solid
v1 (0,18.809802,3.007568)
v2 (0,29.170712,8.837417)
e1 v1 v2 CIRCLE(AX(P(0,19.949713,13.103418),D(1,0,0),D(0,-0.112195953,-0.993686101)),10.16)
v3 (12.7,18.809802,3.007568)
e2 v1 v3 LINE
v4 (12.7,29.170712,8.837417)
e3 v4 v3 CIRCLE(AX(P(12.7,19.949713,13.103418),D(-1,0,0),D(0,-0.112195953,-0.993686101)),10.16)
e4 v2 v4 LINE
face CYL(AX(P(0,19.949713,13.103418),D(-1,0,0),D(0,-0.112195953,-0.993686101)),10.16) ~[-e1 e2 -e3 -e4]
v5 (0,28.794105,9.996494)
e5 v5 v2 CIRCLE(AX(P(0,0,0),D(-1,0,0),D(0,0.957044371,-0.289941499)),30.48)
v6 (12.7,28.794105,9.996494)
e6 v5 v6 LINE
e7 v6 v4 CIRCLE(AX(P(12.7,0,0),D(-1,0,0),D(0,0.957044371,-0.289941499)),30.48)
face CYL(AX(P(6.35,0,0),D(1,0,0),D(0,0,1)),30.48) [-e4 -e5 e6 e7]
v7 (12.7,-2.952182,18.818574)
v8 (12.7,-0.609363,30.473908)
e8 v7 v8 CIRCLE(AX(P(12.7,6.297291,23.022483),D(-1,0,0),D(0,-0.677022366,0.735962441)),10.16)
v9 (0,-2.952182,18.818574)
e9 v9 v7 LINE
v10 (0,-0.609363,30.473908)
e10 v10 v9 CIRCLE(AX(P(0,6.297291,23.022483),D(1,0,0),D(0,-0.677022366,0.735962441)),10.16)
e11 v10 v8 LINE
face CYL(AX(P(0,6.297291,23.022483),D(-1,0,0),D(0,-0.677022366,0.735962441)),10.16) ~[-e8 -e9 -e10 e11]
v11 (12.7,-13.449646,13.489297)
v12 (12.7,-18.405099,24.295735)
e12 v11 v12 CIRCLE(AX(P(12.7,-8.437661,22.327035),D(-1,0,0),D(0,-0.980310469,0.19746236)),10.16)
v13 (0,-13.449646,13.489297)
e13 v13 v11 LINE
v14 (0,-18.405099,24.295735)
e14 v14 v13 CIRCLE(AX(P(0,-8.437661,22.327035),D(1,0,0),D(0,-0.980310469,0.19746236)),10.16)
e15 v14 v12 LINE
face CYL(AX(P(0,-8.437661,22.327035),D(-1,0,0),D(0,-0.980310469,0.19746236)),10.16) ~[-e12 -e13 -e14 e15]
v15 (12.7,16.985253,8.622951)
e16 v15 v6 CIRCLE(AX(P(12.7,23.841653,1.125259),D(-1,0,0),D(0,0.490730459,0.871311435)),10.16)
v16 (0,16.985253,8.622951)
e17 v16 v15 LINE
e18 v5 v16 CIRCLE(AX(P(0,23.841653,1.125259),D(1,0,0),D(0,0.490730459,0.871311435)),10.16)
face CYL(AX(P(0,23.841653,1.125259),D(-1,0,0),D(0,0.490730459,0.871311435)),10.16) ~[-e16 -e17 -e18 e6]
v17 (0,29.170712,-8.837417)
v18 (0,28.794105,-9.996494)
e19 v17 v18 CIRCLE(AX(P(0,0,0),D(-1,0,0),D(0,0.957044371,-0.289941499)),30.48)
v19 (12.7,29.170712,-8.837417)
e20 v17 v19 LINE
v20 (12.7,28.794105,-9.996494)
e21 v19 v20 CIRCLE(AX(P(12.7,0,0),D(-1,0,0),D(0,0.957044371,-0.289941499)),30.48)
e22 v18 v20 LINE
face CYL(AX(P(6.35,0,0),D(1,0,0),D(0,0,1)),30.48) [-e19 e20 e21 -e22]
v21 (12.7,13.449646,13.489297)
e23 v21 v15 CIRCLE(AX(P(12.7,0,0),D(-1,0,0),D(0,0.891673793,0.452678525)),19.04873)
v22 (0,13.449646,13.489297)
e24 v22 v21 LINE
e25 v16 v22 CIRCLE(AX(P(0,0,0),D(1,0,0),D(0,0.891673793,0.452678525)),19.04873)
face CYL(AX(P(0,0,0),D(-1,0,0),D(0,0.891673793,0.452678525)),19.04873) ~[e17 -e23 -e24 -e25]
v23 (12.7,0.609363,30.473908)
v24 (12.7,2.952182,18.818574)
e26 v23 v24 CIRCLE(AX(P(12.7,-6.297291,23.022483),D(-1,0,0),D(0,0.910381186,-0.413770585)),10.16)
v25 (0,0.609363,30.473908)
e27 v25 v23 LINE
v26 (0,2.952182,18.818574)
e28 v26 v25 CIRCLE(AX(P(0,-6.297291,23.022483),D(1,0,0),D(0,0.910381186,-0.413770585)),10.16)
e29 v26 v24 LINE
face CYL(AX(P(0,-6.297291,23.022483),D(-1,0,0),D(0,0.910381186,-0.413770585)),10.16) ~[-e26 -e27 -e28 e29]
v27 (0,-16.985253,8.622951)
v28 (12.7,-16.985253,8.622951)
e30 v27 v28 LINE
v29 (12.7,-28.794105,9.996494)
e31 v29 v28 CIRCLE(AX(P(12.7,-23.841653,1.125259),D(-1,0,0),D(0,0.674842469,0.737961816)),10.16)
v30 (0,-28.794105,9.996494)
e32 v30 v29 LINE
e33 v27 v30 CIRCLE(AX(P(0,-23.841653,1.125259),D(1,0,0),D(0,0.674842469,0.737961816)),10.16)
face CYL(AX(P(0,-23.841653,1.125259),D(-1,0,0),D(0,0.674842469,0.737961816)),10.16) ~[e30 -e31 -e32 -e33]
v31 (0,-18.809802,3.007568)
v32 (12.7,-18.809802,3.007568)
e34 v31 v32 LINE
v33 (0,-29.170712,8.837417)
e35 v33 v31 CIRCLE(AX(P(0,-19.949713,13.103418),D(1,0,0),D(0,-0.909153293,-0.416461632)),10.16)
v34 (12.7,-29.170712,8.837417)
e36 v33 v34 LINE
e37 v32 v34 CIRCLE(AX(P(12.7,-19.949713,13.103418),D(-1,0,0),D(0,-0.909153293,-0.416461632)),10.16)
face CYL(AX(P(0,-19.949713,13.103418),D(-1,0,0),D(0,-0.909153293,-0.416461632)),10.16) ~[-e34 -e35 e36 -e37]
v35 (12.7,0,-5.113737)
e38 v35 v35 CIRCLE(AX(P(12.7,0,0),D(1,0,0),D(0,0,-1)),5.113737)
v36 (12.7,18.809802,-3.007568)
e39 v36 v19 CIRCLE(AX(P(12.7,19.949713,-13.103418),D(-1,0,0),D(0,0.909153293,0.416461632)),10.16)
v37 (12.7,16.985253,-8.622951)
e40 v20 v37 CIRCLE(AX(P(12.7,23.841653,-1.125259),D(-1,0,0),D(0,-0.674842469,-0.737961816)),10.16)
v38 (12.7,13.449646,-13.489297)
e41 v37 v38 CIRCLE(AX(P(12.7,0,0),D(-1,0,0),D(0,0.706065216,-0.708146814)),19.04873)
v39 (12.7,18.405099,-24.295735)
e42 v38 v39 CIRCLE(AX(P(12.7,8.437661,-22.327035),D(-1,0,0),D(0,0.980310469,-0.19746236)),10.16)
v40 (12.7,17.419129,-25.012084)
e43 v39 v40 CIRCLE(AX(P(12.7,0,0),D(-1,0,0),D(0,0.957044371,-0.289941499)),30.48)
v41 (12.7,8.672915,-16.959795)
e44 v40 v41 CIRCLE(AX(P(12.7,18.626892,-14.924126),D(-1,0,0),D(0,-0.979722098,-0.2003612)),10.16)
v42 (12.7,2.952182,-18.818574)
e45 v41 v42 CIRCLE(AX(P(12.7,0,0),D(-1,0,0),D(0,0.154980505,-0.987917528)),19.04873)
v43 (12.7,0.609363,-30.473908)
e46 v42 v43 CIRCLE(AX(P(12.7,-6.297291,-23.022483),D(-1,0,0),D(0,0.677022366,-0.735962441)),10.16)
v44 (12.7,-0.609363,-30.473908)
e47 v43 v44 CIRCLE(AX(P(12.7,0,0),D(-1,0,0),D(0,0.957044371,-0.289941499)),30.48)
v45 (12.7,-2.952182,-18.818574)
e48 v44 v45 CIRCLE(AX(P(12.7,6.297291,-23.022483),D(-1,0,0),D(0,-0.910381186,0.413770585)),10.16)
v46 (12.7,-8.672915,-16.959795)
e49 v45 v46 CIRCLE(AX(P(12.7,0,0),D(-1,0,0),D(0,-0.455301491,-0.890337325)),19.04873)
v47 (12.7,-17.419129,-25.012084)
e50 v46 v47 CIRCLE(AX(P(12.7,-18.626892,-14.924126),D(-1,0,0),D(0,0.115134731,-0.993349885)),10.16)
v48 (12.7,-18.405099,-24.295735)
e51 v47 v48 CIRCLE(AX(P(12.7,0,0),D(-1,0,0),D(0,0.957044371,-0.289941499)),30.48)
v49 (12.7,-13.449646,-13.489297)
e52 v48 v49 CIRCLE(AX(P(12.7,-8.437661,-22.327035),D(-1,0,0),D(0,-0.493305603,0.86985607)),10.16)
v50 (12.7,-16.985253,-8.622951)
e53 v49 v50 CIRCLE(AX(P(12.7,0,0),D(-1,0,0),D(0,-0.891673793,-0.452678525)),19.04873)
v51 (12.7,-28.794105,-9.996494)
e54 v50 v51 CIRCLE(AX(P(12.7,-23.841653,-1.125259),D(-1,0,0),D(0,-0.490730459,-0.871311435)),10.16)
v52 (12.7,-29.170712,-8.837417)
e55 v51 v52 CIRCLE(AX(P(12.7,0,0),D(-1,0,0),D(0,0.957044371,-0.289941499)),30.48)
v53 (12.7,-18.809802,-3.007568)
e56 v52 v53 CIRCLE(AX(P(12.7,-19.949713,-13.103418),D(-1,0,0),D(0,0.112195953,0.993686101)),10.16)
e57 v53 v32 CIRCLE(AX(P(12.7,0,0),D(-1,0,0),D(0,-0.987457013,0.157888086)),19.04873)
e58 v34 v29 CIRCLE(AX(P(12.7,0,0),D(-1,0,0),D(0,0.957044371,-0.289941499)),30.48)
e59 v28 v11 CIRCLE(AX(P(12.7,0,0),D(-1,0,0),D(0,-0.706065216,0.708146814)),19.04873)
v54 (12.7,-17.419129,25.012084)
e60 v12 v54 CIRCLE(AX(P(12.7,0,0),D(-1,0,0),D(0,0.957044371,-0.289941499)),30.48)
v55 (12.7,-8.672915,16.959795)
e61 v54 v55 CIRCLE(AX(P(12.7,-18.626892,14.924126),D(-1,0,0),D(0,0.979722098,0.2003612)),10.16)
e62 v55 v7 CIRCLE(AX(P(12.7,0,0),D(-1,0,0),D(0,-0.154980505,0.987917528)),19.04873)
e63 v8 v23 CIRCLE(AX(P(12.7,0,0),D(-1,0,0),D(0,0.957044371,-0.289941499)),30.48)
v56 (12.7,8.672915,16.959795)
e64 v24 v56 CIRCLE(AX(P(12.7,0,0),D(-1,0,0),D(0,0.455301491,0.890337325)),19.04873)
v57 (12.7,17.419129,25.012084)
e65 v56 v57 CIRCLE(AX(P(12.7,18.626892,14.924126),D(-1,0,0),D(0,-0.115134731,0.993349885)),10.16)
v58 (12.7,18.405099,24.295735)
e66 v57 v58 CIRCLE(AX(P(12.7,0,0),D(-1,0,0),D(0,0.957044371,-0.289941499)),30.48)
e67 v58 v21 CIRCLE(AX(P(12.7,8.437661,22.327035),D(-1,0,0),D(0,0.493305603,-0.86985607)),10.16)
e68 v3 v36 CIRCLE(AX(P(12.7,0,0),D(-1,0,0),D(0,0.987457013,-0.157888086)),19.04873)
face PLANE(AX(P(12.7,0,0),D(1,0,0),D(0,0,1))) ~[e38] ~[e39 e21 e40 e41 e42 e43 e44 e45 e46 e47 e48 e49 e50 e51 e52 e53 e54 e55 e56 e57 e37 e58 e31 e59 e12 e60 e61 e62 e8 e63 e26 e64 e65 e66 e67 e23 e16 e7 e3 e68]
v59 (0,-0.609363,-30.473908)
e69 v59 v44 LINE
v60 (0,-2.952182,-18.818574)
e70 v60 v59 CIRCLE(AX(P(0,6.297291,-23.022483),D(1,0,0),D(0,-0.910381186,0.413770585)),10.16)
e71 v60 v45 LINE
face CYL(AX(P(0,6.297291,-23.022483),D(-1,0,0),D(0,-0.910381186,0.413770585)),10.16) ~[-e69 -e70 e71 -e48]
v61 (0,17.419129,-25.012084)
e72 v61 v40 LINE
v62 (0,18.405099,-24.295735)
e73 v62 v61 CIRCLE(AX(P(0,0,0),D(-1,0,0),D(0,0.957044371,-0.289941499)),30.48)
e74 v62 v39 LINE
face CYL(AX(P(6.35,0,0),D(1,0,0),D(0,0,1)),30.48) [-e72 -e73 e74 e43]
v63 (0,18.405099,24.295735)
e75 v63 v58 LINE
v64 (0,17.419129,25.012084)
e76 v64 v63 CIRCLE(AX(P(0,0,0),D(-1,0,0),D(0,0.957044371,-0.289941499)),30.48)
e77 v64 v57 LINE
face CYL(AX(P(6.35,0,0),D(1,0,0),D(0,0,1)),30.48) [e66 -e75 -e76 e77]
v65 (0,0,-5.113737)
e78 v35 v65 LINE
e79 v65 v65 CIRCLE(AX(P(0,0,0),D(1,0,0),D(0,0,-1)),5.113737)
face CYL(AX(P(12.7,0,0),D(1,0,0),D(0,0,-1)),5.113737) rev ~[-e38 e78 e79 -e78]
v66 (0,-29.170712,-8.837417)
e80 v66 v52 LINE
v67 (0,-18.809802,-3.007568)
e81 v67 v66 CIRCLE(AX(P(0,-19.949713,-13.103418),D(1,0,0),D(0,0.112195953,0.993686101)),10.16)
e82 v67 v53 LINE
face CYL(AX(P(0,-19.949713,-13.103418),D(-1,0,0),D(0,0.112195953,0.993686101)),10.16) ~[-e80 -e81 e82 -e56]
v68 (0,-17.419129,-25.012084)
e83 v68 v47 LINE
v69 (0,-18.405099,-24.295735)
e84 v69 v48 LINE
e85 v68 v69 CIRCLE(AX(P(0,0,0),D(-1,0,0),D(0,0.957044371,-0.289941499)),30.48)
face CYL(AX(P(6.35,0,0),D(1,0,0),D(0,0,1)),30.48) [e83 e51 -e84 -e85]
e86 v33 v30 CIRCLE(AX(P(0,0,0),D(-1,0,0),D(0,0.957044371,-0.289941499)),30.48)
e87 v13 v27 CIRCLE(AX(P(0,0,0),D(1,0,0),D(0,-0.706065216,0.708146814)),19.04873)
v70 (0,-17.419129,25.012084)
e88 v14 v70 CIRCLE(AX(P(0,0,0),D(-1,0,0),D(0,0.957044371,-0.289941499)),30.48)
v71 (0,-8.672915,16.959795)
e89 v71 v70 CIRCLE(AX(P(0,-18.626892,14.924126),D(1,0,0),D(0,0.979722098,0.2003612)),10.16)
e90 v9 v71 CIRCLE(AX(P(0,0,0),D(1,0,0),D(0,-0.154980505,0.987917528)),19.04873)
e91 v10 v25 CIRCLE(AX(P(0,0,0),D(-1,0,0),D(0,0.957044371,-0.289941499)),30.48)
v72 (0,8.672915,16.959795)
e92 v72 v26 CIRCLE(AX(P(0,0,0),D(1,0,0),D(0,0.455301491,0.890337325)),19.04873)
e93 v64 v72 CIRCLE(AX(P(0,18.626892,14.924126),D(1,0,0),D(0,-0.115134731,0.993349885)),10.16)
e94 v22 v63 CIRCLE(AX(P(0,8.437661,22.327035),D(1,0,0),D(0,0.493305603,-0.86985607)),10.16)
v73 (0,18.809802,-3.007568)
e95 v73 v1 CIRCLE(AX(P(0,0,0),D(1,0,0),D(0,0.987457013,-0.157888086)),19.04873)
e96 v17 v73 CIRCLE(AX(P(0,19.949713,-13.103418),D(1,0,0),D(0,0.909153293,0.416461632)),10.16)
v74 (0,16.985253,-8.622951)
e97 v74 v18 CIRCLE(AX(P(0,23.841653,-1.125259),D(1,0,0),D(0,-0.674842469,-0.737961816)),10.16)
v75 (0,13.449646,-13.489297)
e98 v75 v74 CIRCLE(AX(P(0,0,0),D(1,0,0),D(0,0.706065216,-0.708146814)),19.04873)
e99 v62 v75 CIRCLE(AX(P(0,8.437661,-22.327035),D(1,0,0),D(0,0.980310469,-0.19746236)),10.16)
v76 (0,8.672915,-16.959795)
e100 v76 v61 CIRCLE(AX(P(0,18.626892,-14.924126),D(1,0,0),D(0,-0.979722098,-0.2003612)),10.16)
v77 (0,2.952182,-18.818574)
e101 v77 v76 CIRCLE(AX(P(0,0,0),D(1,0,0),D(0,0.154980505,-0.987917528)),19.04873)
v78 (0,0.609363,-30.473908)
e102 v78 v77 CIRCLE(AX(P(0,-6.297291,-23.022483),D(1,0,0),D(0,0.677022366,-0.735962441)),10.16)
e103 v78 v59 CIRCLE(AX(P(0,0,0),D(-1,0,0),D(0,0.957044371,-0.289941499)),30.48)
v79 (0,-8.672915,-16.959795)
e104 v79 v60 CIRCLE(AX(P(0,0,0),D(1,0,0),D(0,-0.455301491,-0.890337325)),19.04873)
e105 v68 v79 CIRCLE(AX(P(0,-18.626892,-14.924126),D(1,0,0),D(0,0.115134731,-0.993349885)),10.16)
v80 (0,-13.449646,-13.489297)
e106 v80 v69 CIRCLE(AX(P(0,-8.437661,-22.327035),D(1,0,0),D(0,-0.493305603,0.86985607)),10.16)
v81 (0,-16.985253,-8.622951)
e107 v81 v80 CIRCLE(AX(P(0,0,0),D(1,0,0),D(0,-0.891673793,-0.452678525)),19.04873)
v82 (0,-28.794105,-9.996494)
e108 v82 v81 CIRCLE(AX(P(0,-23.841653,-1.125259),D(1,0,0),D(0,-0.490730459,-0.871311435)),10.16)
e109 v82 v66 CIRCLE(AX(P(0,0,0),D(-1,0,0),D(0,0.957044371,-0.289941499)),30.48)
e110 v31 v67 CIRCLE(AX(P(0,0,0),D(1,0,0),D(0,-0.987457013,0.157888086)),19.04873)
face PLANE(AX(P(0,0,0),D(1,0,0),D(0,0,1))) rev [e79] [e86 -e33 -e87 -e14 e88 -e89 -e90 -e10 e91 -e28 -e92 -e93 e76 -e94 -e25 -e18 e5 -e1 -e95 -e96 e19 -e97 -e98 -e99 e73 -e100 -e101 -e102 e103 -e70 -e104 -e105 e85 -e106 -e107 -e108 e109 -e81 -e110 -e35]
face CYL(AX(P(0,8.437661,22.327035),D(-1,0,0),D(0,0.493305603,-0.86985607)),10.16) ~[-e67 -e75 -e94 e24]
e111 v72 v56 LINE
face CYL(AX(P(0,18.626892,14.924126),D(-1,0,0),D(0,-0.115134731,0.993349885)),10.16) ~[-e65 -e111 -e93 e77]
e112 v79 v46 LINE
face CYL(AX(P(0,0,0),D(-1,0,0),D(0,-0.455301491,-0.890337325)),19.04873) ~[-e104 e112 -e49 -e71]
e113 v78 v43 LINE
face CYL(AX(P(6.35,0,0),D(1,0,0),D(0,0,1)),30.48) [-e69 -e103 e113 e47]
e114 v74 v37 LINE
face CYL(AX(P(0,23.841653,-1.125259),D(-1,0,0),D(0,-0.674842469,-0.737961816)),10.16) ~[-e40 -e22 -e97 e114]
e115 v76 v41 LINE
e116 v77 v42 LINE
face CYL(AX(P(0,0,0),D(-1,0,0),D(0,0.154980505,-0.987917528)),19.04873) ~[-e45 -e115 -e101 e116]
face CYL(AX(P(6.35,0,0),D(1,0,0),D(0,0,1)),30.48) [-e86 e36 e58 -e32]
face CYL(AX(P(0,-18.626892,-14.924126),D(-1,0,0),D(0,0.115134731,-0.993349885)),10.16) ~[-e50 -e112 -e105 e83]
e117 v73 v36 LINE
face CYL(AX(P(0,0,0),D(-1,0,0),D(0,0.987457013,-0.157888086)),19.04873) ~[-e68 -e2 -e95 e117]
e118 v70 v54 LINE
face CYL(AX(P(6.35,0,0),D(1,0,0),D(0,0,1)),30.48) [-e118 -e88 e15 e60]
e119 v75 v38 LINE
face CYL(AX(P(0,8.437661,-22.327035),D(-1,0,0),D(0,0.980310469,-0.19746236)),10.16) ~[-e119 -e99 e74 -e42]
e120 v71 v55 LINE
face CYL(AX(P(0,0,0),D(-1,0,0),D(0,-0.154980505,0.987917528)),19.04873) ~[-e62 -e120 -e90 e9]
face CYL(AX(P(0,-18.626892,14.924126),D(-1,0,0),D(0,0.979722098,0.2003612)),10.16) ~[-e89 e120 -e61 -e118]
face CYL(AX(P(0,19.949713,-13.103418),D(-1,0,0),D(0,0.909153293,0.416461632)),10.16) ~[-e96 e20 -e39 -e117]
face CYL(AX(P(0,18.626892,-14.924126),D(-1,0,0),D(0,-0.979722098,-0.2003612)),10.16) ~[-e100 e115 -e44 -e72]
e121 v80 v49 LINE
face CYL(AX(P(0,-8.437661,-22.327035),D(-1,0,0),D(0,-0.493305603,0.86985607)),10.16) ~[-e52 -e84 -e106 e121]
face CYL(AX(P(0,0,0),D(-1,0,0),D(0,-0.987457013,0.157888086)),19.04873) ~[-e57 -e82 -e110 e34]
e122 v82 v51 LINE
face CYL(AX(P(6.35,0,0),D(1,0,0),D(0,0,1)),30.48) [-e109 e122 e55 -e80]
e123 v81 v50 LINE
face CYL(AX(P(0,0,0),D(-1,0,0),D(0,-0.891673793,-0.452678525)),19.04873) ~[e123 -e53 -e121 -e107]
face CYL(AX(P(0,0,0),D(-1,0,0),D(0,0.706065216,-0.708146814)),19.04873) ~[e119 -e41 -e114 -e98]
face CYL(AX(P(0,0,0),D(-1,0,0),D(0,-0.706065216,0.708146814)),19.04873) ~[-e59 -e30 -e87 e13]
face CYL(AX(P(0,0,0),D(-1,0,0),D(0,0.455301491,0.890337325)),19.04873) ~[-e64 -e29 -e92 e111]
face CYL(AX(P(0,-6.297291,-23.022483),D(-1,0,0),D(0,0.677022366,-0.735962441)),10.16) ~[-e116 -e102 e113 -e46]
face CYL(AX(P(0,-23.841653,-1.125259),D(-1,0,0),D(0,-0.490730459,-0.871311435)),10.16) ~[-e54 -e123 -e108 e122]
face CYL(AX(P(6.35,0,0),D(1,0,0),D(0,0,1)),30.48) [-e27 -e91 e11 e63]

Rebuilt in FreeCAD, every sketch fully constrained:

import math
import FreeCAD as App
import Part
import Sketcher
from FreeCAD import Vector
Q = App.Units.Quantity


def add_polygon(sketch, points):
    """Adds a closed chain of lines whose ends are joined by coincident constraints."""
    first, n = sketch.GeometryCount, len(points)
    for a, b in zip(points, points[1:] + points[:1]):
        sketch.addGeometry(Part.LineSegment(App.Vector(*a, 0), App.Vector(*b, 0)), False)
    for i in range(n):
        sketch.addConstraint(Sketcher.Constraint("Coincident", first + i, 2, first + (i + 1) % n, 1))

doc = App.newDocument("Part")
body = doc.addObject("PartDesign::Body", "Body")

# Sketch on XZ plane
sketch1 = body.newObject("Sketcher::SketchObject", "Sketch")
sketch1.AttachmentSupport = (doc.getObject("XZ_Plane"), [""])
sketch1.MapMode = "FlatFace"
add_polygon(sketch1, [(0, -30), (0, 0), (13, 0), (13, -30)])  # lines 0-3
sketch1.addConstraint([
    Sketcher.Constraint("Vertical", 0),
    Sketcher.Constraint("Horizontal", 1),
    Sketcher.Constraint("Vertical", 2),
    Sketcher.Constraint("Horizontal", 3),
    Sketcher.Constraint("Coincident", 0, 2, -1, 1),
    Sketcher.Constraint("DistanceX", 1, 1, 1, 2, Q("0.5 in")),
    Sketcher.Constraint("DistanceY", 0, 1, 0, 2, Q("1.2 in")),
])
revolution = body.newObject("PartDesign::Revolution", "Revolution")
revolution.Profile = sketch1
revolution.ReferenceAxis = (sketch1, ["H_Axis"])
revolution.Angle = 360

# Sketch on YZ plane
sketch2 = body.newObject("Sketcher::SketchObject", "Sketch001")
sketch2.AttachmentSupport = (doc.getObject("YZ_Plane"), [""])
sketch2.MapMode = "FlatFace"
sketch2.addGeometry([
    Part.ArcOfCircle(Part.Circle(Vector(0, 0, 0), Vector(0, 0, 1), 19), math.radians(-9.08), math.radians(9.08)),
    Part.ArcOfCircle(Part.Circle(Vector(20, -13, 0), Vector(0, 0, 1), 10), math.radians(25), math.radians(96)),
    Part.ArcOfCircle(Part.Circle(Vector(0, 0, 0), Vector(0, 0, 1), 31), math.radians(-17), math.radians(17)),
    Part.ArcOfCircle(Part.Circle(Vector(20, 13, 0), Vector(0, 0, 1), 10), math.radians(-96), math.radians(-25)),
], False)
sketch2.addConstraint([
    Sketcher.Constraint("Coincident", 0, 1, 1, 2),
    Sketcher.Constraint("Coincident", 1, 1, 2, 1),
    Sketcher.Constraint("Coincident", 2, 2, 3, 2),
    Sketcher.Constraint("Coincident", 3, 1, 0, 2),
    Sketcher.Constraint("Coincident", 0, 3, -1, 1),
    Sketcher.Constraint("Coincident", 2, 3, -1, 1),
    Sketcher.Constraint("Equal", 1, 3),
    Sketcher.Constraint("Symmetric", 1, 3, 3, 3, -1),
    Sketcher.Constraint("Radius", 1, Q("0.4 in")),
    Sketcher.Constraint("Radius", 2, Q("1.201 in")),
    Sketcher.Constraint("Radius", 0, Q("19.04873 mm")),
    Sketcher.Constraint("DistanceY", 1, 1, 0, 1, Q("5.864601 mm")),
    Sketcher.Constraint("DistanceY", 1, 3, -1, 1, Q("13.103418 mm")),
])
pocket1 = body.newObject("PartDesign::Pocket", "Pocket")
pocket1.Profile = sketch2
pocket1.Type = "ThroughAll"
pocket1.Reversed = True
doc.recompute()

polarpattern = body.newObject("PartDesign::PolarPattern", "PolarPattern")
polarpattern.Originals = [pocket1]
polarpattern.Axis = (doc.getObject("X_Axis"), [""])
polarpattern.Angle = 360
polarpattern.Occurrences = 10
body.Tip = polarpattern

# Sketch on YZ plane
sketch3 = body.newObject("Sketcher::SketchObject", "Sketch002")
sketch3.AttachmentSupport = (doc.getObject("YZ_Plane"), [""])
sketch3.MapMode = "FlatFace"
sketch3.addGeometry(Part.Circle(Vector(0, 0, 0), Vector(0, 0, 1), 0.4), False)
sketch3.addConstraint([
    Sketcher.Constraint("Coincident", 0, 3, -1, 1),
    Sketcher.Constraint("Diameter", 0, Q("0.03125 in")),
])
pocket2 = body.newObject("PartDesign::Pocket", "Pocket001")
pocket2.Profile = sketch3
pocket2.Length = 101.600102
pocket2.Midplane = True

# Sketch on YZ plane
sketch4 = body.newObject("Sketcher::SketchObject", "Sketch003")
sketch4.AttachmentSupport = (doc.getObject("YZ_Plane"), [""])
sketch4.MapMode = "FlatFace"
sketch4.AttachmentOffset = App.Placement(Vector(0, 0, 0.5 * 25.4), App.Rotation())
sketch4.addGeometry(Part.Circle(Vector(0, 0, 0), Vector(0, 0, 1), 5), False)
sketch4.addConstraint([
    Sketcher.Constraint("Coincident", 0, 3, -1, 1),
    Sketcher.Constraint("Diameter", 0, Q("10.227473 mm")),
])
pocket3 = body.newObject("PartDesign::Pocket", "Pocket002")
pocket3.Profile = sketch4
pocket3.Type = "ThroughAll"

doc.recompute()
